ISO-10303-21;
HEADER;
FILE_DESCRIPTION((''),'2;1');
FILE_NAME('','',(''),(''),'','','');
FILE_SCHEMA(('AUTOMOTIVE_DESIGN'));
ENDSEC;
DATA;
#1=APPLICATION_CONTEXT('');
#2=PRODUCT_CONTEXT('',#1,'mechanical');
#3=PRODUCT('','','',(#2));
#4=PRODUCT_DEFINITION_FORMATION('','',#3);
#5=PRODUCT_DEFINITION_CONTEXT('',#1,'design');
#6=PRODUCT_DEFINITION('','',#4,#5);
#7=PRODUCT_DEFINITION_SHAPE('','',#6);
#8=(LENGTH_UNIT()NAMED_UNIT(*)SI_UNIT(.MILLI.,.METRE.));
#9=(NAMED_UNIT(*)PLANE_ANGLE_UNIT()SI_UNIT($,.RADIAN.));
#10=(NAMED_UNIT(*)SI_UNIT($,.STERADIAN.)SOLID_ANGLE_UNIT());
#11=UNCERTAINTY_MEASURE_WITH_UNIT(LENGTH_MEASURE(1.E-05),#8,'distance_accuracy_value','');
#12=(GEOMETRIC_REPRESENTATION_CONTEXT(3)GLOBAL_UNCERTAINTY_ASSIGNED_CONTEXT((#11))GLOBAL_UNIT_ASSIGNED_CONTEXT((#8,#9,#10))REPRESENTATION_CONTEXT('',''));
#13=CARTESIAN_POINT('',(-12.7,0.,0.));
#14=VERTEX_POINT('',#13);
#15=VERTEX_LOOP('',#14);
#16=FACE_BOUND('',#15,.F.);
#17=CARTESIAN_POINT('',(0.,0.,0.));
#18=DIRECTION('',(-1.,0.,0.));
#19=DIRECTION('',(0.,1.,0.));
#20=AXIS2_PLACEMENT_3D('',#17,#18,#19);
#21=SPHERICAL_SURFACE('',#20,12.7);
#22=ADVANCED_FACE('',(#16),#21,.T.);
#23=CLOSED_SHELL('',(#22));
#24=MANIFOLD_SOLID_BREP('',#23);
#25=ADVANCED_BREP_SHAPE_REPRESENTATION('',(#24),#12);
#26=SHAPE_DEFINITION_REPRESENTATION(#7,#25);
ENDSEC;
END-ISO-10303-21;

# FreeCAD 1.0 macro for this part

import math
import FreeCAD as App
import Part
import Sketcher
Q = App.Units.Quantity

doc = App.newDocument("Part")
params = doc.addObject("Spreadsheet::Sheet", "Params")
for row, (alias, value) in enumerate([
    ("sketch1_radius", "0.5 in"),
    ("revolution_angle", "360 deg"),
], start=1):
    params.set(f"A{row}", alias)
    params.set(f"B{row}", "=" + value)
    params.setAlias(f"B{row}", alias)

body = doc.addObject("PartDesign::Body", "Body")

# Sketch on XY plane
sketch1 = body.newObject("Sketcher::SketchObject", "Sketch")
sketch1.AttachmentSupport = (doc.getObject("XY_Plane"), [""])
sketch1.MapMode = "FlatFace"
sketch1.addGeometry(Part.LineSegment(App.Vector(-13, 0, 0), App.Vector(13, 0, 0)), False)
sketch1.addGeometry(Part.ArcOfCircle(Part.Circle(App.Vector(0, 0, 0), App.Vector(0, 0, 1), 13), math.radians(0), math.radians(180)), False)
sketch1.addConstraint(Sketcher.Constraint("Coincident", 0, 1, 1, 2))
sketch1.addConstraint(Sketcher.Constraint("Coincident", 1, 1, 0, 2))
sketch1.addConstraint(Sketcher.Constraint("Horizontal", 0))
sketch1.addConstraint(Sketcher.Constraint("Coincident", 1, 3, -1, 1))
sketch1.addConstraint(Sketcher.Constraint("PointOnObject", 0, 1, -1))
sketch1.addConstraint(Sketcher.Constraint("Radius", 1, Q("0.5 in")))
sketch1.setExpression("Constraints[5]", "Params.sketch1_radius")
revolution = body.newObject("PartDesign::Revolution", "Revolution")
revolution.Profile = sketch1
revolution.ReferenceAxis = (sketch1, ["H_Axis"])
revolution.setExpression("Angle", "Params.revolution_angle")

doc.recompute()
